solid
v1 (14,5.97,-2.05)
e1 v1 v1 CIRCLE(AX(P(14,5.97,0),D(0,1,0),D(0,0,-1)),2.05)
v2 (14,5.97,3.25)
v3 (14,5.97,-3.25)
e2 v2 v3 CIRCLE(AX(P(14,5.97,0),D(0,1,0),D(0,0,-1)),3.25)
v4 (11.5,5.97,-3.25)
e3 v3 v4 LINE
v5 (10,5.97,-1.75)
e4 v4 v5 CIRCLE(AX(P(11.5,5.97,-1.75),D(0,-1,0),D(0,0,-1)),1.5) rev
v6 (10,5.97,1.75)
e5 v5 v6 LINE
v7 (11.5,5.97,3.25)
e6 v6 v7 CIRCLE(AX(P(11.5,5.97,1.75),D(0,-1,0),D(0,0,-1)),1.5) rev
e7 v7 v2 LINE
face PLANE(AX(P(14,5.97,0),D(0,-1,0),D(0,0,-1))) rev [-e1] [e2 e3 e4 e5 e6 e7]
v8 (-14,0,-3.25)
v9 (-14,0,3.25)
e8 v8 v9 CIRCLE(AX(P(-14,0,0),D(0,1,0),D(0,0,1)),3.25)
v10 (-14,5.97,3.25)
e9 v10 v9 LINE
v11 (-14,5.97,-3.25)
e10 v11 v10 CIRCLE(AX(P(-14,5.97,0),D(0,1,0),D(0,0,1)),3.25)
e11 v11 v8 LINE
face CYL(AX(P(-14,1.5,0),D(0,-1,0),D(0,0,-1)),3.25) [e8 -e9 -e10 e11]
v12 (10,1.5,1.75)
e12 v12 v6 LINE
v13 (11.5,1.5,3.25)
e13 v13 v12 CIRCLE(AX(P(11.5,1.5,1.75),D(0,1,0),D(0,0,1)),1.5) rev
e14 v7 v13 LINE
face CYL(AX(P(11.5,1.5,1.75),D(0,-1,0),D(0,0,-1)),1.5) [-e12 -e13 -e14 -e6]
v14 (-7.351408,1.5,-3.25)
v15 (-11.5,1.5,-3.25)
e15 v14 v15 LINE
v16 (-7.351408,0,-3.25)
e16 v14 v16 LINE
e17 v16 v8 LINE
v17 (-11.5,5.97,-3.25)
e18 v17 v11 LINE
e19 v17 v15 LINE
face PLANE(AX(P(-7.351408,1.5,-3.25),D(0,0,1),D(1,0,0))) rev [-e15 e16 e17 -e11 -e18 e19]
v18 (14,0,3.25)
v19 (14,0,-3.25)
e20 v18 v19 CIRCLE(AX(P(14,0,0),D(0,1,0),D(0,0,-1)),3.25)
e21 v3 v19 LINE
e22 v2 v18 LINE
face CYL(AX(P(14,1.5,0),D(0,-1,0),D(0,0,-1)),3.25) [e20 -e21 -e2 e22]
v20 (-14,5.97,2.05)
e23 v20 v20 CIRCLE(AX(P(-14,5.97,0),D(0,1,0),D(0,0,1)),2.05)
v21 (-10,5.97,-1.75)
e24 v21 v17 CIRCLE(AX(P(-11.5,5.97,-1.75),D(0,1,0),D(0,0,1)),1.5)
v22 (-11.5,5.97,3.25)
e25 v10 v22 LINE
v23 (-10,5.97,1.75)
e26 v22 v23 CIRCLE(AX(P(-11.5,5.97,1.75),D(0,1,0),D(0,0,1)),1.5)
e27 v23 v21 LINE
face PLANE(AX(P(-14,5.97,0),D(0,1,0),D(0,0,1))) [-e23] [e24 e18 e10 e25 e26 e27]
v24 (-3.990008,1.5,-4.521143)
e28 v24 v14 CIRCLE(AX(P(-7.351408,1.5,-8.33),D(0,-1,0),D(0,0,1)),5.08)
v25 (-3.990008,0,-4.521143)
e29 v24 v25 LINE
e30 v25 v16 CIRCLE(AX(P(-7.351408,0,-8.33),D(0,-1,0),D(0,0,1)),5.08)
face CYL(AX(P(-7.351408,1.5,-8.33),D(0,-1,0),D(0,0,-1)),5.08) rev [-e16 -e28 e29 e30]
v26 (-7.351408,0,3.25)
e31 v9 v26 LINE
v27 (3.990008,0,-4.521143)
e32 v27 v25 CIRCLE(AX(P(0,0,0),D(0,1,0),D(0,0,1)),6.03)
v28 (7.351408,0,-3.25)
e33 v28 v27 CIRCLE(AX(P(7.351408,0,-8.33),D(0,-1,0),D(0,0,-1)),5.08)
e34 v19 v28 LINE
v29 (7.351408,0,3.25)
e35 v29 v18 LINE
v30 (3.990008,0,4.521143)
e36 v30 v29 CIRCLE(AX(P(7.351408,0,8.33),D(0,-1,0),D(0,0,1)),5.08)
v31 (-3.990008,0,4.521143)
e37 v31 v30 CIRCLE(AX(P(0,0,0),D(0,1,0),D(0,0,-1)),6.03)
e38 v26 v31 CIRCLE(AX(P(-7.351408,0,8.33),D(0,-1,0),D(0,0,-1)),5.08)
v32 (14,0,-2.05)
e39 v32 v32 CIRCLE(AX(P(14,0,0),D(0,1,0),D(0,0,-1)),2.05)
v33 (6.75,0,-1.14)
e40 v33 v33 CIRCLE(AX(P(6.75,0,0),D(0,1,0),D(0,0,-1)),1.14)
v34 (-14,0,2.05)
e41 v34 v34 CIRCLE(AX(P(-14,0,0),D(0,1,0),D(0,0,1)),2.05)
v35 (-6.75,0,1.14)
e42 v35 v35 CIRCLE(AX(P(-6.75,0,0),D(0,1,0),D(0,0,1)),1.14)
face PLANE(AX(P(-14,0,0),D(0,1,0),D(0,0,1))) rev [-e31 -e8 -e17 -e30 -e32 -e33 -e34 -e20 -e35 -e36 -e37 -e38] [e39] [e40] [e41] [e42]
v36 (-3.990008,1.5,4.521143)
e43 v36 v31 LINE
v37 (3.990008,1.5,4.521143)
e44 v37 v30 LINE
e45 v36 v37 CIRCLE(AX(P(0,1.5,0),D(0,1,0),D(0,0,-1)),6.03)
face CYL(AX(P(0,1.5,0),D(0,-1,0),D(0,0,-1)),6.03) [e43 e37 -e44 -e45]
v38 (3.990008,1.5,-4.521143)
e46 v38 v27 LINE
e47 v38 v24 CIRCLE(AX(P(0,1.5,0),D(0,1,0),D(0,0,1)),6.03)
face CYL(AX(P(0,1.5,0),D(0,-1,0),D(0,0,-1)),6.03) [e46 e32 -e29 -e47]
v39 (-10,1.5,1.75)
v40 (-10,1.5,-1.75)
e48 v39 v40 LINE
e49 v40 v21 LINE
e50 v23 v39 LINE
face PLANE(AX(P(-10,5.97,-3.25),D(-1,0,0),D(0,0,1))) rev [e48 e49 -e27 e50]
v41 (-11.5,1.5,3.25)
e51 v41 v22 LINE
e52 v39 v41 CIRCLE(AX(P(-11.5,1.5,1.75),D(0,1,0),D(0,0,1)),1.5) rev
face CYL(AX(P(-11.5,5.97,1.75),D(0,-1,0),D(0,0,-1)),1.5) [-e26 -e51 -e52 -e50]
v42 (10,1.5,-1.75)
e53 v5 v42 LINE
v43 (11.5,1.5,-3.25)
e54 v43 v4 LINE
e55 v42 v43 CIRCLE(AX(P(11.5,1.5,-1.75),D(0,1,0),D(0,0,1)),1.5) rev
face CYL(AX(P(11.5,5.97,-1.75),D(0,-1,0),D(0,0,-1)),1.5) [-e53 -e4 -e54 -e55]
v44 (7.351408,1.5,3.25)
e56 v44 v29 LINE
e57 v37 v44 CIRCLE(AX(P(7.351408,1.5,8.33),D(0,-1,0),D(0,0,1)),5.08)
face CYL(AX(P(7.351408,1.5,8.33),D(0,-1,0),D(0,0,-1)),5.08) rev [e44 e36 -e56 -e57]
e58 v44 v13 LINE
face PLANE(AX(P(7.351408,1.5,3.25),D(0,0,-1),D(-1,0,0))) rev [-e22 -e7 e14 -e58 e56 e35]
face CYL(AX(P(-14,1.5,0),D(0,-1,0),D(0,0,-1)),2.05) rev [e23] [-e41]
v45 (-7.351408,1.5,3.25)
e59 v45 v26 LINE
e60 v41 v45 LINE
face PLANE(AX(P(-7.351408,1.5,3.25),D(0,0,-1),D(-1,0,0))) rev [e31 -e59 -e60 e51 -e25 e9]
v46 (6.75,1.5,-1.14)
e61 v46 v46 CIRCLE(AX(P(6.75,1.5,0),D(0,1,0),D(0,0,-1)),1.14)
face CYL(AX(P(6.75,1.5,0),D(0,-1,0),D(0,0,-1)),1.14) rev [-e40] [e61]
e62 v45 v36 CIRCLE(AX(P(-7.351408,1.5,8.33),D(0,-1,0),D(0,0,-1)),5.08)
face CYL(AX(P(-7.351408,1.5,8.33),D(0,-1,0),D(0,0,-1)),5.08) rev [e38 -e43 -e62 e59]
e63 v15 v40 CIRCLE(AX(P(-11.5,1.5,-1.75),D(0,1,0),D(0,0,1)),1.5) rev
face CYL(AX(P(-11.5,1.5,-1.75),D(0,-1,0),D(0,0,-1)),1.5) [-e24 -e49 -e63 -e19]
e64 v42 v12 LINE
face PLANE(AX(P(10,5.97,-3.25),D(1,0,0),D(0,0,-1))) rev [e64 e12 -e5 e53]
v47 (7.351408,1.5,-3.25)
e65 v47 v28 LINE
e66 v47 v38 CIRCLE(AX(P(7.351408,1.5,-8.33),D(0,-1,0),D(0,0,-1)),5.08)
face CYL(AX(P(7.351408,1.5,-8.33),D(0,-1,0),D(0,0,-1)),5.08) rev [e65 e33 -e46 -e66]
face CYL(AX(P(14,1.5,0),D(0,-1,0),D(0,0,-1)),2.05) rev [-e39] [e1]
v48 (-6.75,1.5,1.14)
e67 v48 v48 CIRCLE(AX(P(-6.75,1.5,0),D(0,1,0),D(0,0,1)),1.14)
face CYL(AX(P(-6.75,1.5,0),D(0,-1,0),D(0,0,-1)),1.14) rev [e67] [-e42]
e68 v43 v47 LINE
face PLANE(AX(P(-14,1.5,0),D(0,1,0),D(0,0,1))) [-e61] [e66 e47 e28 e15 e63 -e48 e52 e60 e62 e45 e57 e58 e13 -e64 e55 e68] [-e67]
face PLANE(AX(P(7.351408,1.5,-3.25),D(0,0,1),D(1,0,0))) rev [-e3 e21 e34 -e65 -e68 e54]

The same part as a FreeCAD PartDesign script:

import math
import FreeCAD as App
import Part
import Sketcher


def edges_at(feature, points):
    """Names of the edges that pass closest to the given points."""
    edges = feature.Shape.Edges
    near = lambda p: min(range(len(edges)), key=lambda i: edges[i].distToShape(Part.Vertex(*p))[0])
    return sorted({f"Edge{near(p) + 1}" for p in points})

doc = App.newDocument("Part")
body = doc.addObject("PartDesign::Body", "Body")

# Sketch on XZ plane
sketch1 = body.newObject("Sketcher::SketchObject", "Sketch")
sketch1.AttachmentSupport = (doc.getObject("XZ_Plane"), [""])
sketch1.MapMode = "FlatFace"
sketch1.addGeometry(Part.LineSegment(App.Vector(-7.351408, -3.25, 0), App.Vector(-14, -3.25, 0)), False)
sketch1.addGeometry(Part.ArcOfCircle(Part.Circle(App.Vector(-14, 0, 0), App.Vector(0, 0, 1), 3.25), math.radians(90), math.radians(270)), False)
sketch1.addGeometry(Part.LineSegment(App.Vector(-14, 3.25, 0), App.Vector(-7.351408, 3.25, 0)), False)
sketch1.addGeometry(Part.ArcOfCircle(Part.Circle(App.Vector(-7.351408, 8.33, 0), App.Vector(0, 0, 1), 5.08), math.radians(-90), math.radians(-48.57089)), False)
sketch1.addGeometry(Part.ArcOfCircle(Part.Circle(App.Vector(0, 0, 0), App.Vector(0, 0, 1), 6.03), math.radians(48.57089), math.radians(131.42911)), False)
sketch1.addGeometry(Part.ArcOfCircle(Part.Circle(App.Vector(7.351408, 8.33, 0), App.Vector(0, 0, 1), 5.08), math.radians(-131.42911), math.radians(-90)), False)
sketch1.addGeometry(Part.LineSegment(App.Vector(7.351408, 3.25, 0), App.Vector(14, 3.25, 0)), False)
sketch1.addGeometry(Part.ArcOfCircle(Part.Circle(App.Vector(14, 0, 0), App.Vector(0, 0, 1), 3.25), math.radians(-90), math.radians(90)), False)
sketch1.addGeometry(Part.LineSegment(App.Vector(14, -3.25, 0), App.Vector(7.351408, -3.25, 0)), False)
sketch1.addGeometry(Part.ArcOfCircle(Part.Circle(App.Vector(7.351408, -8.33, 0), App.Vector(0, 0, 1), 5.08), math.radians(90), math.radians(131.42911)), False)
sketch1.addGeometry(Part.ArcOfCircle(Part.Circle(App.Vector(0, 0, 0), App.Vector(0, 0, 1), 6.03), math.radians(-131.42911), math.radians(-48.57089)), False)
sketch1.addGeometry(Part.ArcOfCircle(Part.Circle(App.Vector(-7.351408, -8.33, 0), App.Vector(0, 0, 1), 5.08), math.radians(48.57089), math.radians(90)), False)
sketch1.addGeometry(Part.Circle(App.Vector(-14, 0, 0), App.Vector(0, 0, 1), 2.05), False)
sketch1.addGeometry(Part.Circle(App.Vector(-6.75, 0, 0), App.Vector(0, 0, 1), 1.14), False)
sketch1.addGeometry(Part.Circle(App.Vector(6.75, 0, 0), App.Vector(0, 0, 1), 1.14), False)
sketch1.addGeometry(Part.Circle(App.Vector(14, 0, 0), App.Vector(0, 0, 1), 2.05), False)
sketch1.addConstraint(Sketcher.Constraint("Tangent", 0, 2, 1, 2))
sketch1.addConstraint(Sketcher.Constraint("Tangent", 1, 1, 2, 1))
sketch1.addConstraint(Sketcher.Constraint("Tangent", 2, 2, 3, 1))
sketch1.addConstraint(Sketcher.Constraint("Tangent", 3, 2, 4, 2))
sketch1.addConstraint(Sketcher.Constraint("Tangent", 4, 1, 5, 1))
sketch1.addConstraint(Sketcher.Constraint("Tangent", 5, 2, 6, 1))
sketch1.addConstraint(Sketcher.Constraint("Tangent", 6, 2, 7, 2))
sketch1.addConstraint(Sketcher.Constraint("Tangent", 7, 1, 8, 1))
sketch1.addConstraint(Sketcher.Constraint("Tangent", 8, 2, 9, 1))
sketch1.addConstraint(Sketcher.Constraint("Tangent", 9, 2, 10, 2))
sketch1.addConstraint(Sketcher.Constraint("Tangent", 10, 1, 11, 1))
sketch1.addConstraint(Sketcher.Constraint("Tangent", 11, 2, 0, 1))
sketch1.addConstraint(Sketcher.Constraint("Horizontal", 0))
sketch1.addConstraint(Sketcher.Constraint("Horizontal", 2))
sketch1.addConstraint(Sketcher.Constraint("Horizontal", 6))
sketch1.addConstraint(Sketcher.Constraint("Horizontal", 8))
sketch1.addConstraint(Sketcher.Constraint("Coincident", 4, 3, -1, 1))
sketch1.addConstraint(Sketcher.Constraint("Coincident", 10, 3, -1, 1))
sketch1.addConstraint(Sketcher.Constraint("Coincident", 12, 3, 1, 3))
sketch1.addConstraint(Sketcher.Constraint("Coincident", 15, 3, 7, 3))
sketch1.addConstraint(Sketcher.Constraint("Equal", 3, 5))
sketch1.addConstraint(Sketcher.Constraint("Equal", 1, 7))
sketch1.addConstraint(Sketcher.Constraint("Equal", 5, 9))
sketch1.addConstraint(Sketcher.Constraint("Equal", 4, 10))
sketch1.addConstraint(Sketcher.Constraint("Equal", 9, 11))
sketch1.addConstraint(Sketcher.Constraint("Equal", 13, 14))
sketch1.addConstraint(Sketcher.Constraint("Equal", 12, 15))
sketch1.addConstraint(Sketcher.Constraint("Symmetric", 1, 3, 7, 3, -1, 1))
sketch1.addConstraint(Sketcher.Constraint("Symmetric", 13, 3, 14, 3, -1, 1))
sketch1.addConstraint(Sketcher.Constraint("PointOnObject", 1, 3, -1))
sketch1.addConstraint(Sketcher.Constraint("PointOnObject", 13, 3, -1))
sketch1.addConstraint(Sketcher.Constraint("Diameter", 12, 4.1))
sketch1.addConstraint(Sketcher.Constraint("Diameter", 13, 2.28))
sketch1.addConstraint(Sketcher.Constraint("Radius", 1, 3.25))
sketch1.addConstraint(Sketcher.Constraint("Radius", 3, 5.08))
sketch1.addConstraint(Sketcher.Constraint("Radius", 4, 6.03))
sketch1.addConstraint(Sketcher.Constraint("DistanceX", 1, 3, -1, 1, 14.0))
sketch1.addConstraint(Sketcher.Constraint("DistanceX", 13, 3, -1, 1, 6.75))
pad1 = body.newObject("PartDesign::Pad", "Pad")
pad1.Profile = sketch1
pad1.Length = 1.5
pad1.Reversed = True

# Sketch on XZ plane
sketch2 = body.newObject("Sketcher::SketchObject", "Sketch001")
sketch2.AttachmentSupport = (doc.getObject("XZ_Plane"), [""])
sketch2.MapMode = "FlatFace"
sketch2.AttachmentOffset = App.Placement(App.Vector(0, 0, -1.5), App.Rotation())
sketch2.addGeometry(Part.LineSegment(App.Vector(-10, -3.25, 0), App.Vector(-14, -3.25, 0)), False)
sketch2.addGeometry(Part.ArcOfCircle(Part.Circle(App.Vector(-14, 0, 0), App.Vector(0, 0, 1), 3.25), math.radians(90), math.radians(270)), False)
sketch2.addGeometry(Part.LineSegment(App.Vector(-14, 3.25, 0), App.Vector(-10, 3.25, 0)), False)
sketch2.addGeometry(Part.LineSegment(App.Vector(-10, 3.25, 0), App.Vector(-10, -3.25, 0)), False)
sketch2.addGeometry(Part.Circle(App.Vector(-14, 0, 0), App.Vector(0, 0, 1), 2.05), False)
sketch2.addGeometry(Part.LineSegment(App.Vector(10, 3.25, 0), App.Vector(14, 3.25, 0)), False)
sketch2.addGeometry(Part.ArcOfCircle(Part.Circle(App.Vector(14, 0, 0), App.Vector(0, 0, 1), 3.25), math.radians(-90), math.radians(90)), False)
sketch2.addGeometry(Part.LineSegment(App.Vector(14, -3.25, 0), App.Vector(10, -3.25, 0)), False)
sketch2.addGeometry(Part.LineSegment(App.Vector(10, -3.25, 0), App.Vector(10, 3.25, 0)), False)
sketch2.addGeometry(Part.Circle(App.Vector(14, 0, 0), App.Vector(0, 0, 1), 2.05), False)
sketch2.addConstraint(Sketcher.Constraint("Tangent", 0, 2, 1, 2))
sketch2.addConstraint(Sketcher.Constraint("Tangent", 1, 1, 2, 1))
sketch2.addConstraint(Sketcher.Constraint("Coincident", 2, 2, 3, 1))
sketch2.addConstraint(Sketcher.Constraint("Coincident", 3, 2, 0, 1))
sketch2.addConstraint(Sketcher.Constraint("Tangent", 5, 2, 6, 2))
sketch2.addConstraint(Sketcher.Constraint("Tangent", 6, 1, 7, 1))
sketch2.addConstraint(Sketcher.Constraint("Coincident", 7, 2, 8, 1))
sketch2.addConstraint(Sketcher.Constraint("Coincident", 8, 2, 5, 1))
sketch2.addConstraint(Sketcher.Constraint("Horizontal", 0))
sketch2.addConstraint(Sketcher.Constraint("Horizontal", 2))
sketch2.addConstraint(Sketcher.Constraint("Vertical", 3))
sketch2.addConstraint(Sketcher.Constraint("Horizontal", 5))
sketch2.addConstraint(Sketcher.Constraint("Horizontal", 7))
sketch2.addConstraint(Sketcher.Constraint("Vertical", 8))
sketch2.addConstraint(Sketcher.Constraint("Coincident", 4, 3, 1, 3))
sketch2.addConstraint(Sketcher.Constraint("Coincident", 9, 3, 6, 3))
sketch2.addConstraint(Sketcher.Constraint("Equal", 1, 6))
sketch2.addConstraint(Sketcher.Constraint("Equal", 4, 9))
sketch2.addConstraint(Sketcher.Constraint("Symmetric", 1, 3, 6, 3, -1, 1))
sketch2.addConstraint(Sketcher.Constraint("Symmetric", 3, 2, 7, 2, -2))
sketch2.addConstraint(Sketcher.Constraint("Diameter", 4, 4.1))
sketch2.addConstraint(Sketcher.Constraint("DistanceX", 0, 2, 0, 1, 4.0))
sketch2.addConstraint(Sketcher.Constraint("Radius", 1, 3.25))
sketch2.addConstraint(Sketcher.Constraint("DistanceX", 1, 3, -1, 1, 14.0))
pad2 = body.newObject("PartDesign::Pad", "Pad001")
pad2.Profile = sketch2
pad2.Length = 4.47
pad2.Reversed = True
doc.recompute()

fillet = body.newObject("PartDesign::Fillet", "Fillet")
fillet.Base = (pad2, edges_at(pad2, [
    (-10, 3.735, 3.25),
    (-10, 3.735, -3.25),
    (10, 3.735, -3.25),
    (10, 3.735, 3.25),
]))
fillet.Radius = 1.5

doc.recompute()
